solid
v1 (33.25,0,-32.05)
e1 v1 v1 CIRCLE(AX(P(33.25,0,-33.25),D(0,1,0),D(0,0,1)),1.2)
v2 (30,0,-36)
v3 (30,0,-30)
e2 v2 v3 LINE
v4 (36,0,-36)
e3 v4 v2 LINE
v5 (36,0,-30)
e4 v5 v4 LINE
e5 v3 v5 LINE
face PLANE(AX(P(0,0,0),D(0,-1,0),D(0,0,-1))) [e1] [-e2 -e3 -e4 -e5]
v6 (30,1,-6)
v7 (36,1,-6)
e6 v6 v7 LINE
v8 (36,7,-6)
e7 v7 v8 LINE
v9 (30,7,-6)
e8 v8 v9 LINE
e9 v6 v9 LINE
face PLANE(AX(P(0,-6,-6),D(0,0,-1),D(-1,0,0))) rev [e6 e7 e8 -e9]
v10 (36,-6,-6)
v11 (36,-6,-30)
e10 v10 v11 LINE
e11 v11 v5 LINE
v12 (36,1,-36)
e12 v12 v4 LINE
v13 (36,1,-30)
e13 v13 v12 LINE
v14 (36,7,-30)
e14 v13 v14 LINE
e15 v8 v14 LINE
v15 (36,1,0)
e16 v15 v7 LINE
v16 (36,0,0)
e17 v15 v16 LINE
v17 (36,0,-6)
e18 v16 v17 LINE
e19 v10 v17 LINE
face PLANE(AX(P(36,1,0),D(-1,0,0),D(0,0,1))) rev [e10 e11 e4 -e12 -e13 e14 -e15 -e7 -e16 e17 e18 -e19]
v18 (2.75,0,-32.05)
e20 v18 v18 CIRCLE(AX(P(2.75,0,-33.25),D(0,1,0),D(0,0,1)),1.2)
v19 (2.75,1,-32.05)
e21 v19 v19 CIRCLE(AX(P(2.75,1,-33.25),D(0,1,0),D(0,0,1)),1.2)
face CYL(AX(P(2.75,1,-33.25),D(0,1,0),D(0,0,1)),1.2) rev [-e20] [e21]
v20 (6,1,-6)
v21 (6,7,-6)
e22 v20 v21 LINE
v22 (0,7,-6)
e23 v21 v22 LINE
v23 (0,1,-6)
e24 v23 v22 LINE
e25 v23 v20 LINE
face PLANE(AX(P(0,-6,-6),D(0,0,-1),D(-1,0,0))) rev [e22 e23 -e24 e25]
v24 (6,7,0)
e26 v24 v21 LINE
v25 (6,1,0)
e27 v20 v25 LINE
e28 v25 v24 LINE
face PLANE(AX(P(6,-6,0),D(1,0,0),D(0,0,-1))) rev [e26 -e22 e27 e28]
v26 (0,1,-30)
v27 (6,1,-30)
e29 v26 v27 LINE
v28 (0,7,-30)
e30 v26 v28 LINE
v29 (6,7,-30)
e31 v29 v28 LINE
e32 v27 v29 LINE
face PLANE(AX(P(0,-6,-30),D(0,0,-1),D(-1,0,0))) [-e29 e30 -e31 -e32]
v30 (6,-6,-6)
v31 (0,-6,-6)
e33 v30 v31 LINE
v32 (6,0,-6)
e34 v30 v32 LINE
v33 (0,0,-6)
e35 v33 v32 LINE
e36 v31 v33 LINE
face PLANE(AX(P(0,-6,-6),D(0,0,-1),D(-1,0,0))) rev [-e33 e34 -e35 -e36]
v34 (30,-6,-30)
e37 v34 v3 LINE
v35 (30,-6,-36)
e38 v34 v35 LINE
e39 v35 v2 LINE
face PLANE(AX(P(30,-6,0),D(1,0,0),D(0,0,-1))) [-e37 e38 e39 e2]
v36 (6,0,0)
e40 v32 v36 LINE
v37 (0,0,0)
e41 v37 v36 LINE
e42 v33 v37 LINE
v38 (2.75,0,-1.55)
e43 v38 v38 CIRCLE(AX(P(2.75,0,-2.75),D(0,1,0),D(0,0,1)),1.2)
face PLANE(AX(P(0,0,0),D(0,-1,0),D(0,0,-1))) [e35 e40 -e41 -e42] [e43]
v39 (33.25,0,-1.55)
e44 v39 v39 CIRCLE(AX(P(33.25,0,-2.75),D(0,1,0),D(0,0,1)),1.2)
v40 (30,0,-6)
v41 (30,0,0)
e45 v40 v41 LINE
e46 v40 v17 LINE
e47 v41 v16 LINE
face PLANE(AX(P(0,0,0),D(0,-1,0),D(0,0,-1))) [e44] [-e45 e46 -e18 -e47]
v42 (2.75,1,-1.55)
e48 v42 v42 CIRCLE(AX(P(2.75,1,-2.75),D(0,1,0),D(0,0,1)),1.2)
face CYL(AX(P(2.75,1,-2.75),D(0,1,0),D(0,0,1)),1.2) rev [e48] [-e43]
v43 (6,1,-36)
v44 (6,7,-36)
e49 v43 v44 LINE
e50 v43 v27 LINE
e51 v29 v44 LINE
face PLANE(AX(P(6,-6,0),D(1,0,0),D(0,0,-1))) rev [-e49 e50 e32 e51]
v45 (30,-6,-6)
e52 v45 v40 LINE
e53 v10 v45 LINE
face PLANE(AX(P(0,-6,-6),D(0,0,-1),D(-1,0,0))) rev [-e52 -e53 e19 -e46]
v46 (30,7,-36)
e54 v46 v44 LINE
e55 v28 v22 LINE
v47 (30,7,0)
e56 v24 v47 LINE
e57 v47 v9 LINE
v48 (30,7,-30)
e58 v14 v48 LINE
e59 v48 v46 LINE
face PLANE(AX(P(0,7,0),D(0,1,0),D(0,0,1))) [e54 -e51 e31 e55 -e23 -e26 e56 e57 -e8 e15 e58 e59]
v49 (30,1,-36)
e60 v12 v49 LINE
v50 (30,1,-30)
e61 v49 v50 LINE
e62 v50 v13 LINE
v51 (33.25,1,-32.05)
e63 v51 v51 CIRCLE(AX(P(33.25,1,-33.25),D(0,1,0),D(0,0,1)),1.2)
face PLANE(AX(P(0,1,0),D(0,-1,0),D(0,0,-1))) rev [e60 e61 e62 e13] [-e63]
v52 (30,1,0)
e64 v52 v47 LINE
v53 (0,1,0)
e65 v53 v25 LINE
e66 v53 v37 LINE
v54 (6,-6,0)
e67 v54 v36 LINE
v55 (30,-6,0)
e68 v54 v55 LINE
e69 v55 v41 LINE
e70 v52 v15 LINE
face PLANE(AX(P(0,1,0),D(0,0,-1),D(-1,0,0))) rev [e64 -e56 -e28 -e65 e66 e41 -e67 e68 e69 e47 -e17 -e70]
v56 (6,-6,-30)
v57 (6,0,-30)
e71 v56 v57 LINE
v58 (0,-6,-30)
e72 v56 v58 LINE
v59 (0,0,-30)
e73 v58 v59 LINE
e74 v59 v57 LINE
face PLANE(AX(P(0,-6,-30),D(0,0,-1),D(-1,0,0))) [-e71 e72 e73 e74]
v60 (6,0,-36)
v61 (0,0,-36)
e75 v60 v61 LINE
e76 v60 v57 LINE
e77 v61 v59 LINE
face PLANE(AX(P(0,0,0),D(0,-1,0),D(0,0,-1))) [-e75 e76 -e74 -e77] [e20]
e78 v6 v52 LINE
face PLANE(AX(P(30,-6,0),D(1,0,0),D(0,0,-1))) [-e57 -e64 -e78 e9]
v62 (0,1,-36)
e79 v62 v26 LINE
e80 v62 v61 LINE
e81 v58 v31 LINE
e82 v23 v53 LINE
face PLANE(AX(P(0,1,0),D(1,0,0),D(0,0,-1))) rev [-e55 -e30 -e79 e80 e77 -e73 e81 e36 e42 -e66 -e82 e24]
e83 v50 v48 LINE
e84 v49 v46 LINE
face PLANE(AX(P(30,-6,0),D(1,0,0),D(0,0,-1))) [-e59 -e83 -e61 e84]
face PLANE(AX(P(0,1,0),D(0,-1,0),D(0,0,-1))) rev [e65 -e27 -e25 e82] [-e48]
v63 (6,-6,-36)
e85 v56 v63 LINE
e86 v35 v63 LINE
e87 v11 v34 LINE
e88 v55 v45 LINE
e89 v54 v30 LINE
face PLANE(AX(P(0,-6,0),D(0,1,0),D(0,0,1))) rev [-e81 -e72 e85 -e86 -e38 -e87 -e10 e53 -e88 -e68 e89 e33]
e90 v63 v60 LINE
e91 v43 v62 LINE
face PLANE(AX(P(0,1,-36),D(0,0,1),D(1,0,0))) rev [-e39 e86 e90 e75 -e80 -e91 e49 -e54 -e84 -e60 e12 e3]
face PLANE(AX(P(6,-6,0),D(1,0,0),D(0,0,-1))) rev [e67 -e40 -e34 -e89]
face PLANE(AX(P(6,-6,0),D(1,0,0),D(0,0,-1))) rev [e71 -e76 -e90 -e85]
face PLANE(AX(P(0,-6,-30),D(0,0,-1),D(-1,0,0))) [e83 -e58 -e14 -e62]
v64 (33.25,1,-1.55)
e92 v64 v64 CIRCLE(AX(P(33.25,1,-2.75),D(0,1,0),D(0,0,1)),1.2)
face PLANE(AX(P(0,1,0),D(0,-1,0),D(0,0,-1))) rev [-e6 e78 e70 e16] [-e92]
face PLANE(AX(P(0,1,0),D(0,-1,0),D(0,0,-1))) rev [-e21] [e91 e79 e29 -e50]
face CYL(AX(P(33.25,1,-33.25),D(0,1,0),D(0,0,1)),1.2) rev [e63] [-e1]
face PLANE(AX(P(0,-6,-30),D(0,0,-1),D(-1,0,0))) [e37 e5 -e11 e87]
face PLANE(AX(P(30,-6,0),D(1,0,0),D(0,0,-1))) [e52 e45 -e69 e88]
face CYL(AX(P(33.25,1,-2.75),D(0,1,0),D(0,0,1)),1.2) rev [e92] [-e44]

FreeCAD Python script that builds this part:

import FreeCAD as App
import Part
import Sketcher
from FreeCAD import Vector
Q = App.Units.Quantity


def add_polygon(sketch, points):
    """Adds a closed chain of lines whose ends are joined by coincident constraints."""
    first, n = sketch.GeometryCount, len(points)
    for a, b in zip(points, points[1:] + points[:1]):
        sketch.addGeometry(Part.LineSegment(App.Vector(*a, 0), App.Vector(*b, 0)), False)
    for i in range(n):
        sketch.addConstraint(Sketcher.Constraint("Coincident", first + i, 2, first + (i + 1) % n, 1))

doc = App.newDocument("Part")
body = doc.addObject("PartDesign::Body", "Body")

sketch1 = doc.addObject("Sketcher::SketchObject", "Sketch")
body.addObject(sketch1)
sketch1.AttachmentSupport = (doc.XZ_Plane, [""])
sketch1.MapMode = "FlatFace"
add_polygon(sketch1, [(0, -36), (0, 0), (36, 0), (36, -36)])
sketch1.addConstraint([
    Sketcher.Constraint("Vertical", 0),
    Sketcher.Constraint("Horizontal", 1),
    Sketcher.Constraint("Vertical", 2),
    Sketcher.Constraint("Horizontal", 3),
    Sketcher.Constraint("Coincident", 0, 2, -1, 1),
    Sketcher.Constraint("Equal", 3, 0),
    Sketcher.Constraint("DistanceX", 1, 1, 1, 2, Q("36 mm")),
])
pad1 = doc.addObject("PartDesign::Pad", "Pad")
body.addObject(pad1)
pad1.Profile = sketch1
pad1.Length = 1
pad1.Reversed = True

sketch2 = doc.addObject("Sketcher::SketchObject", "Sketch001")
body.addObject(sketch2)
sketch2.AttachmentSupport = (doc.XZ_Plane, [""])
sketch2.MapMode = "FlatFace"
sketch2.AttachmentOffset = App.Placement(Vector(0, 0, -1), App.Rotation())
sketch2.addGeometry([
    Part.Circle(Vector(2.8, -2.8, 0), Vector(0, 0, 1), 1.2),
    Part.Circle(Vector(2.8, -33.2, 0), Vector(0, 0, 1), 1.2),
    Part.Circle(Vector(33.2, -33.2, 0), Vector(0, 0, 1), 1.2),
    Part.Circle(Vector(33.2, -2.8, 0), Vector(0, 0, 1), 1.2),
], False)
sketch2.addConstraint([
    Sketcher.Constraint("Equal", 0, 1),
    Sketcher.Constraint("Equal", 1, 2),
    Sketcher.Constraint("Equal", 2, 3),
    Sketcher.Constraint("Horizontal", 1, 3, 2, 3),
    Sketcher.Constraint("Horizontal", 0, 3, 3, 3),
    Sketcher.Constraint("Vertical", 0, 3, 1, 3),
    Sketcher.Constraint("Vertical", 2, 3, 3, 3),
    Sketcher.Constraint("Diameter", 0, Q("2.4 mm")),
    Sketcher.Constraint("DistanceY", 1, 3, 0, 3, Q("30.5 mm")),
    Sketcher.Constraint("DistanceX", 1, 3, 2, 3, Q("30.5 mm")),
    Sketcher.Constraint("DistanceX", -1, 1, 0, 3, Q("2.75 mm")),
    Sketcher.Constraint("DistanceY", 0, 3, -1, 1, Q("2.75 mm")),
])
doc.recompute()
hole = doc.addObject("PartDesign::Hole", "Hole")
body.addObject(hole)
hole.Profile = sketch2
hole.ThreadType = "None"
hole.Diameter = 2.4
hole.DepthType = "ThroughAll"
hole.Reversed = True

sketch3 = doc.addObject("Sketcher::SketchObject", "Sketch002")
body.addObject(sketch3)
sketch3.AttachmentSupport = (doc.XZ_Plane, [""])
sketch3.MapMode = "FlatFace"
sketch3.AttachmentOffset = App.Placement(Vector(0, 0, -1), App.Rotation())
add_polygon(sketch3, [(0, -30), (0, -6), (6, -6), (6, 0), (30, 0), (30, -6), (36, -6), (36, -30), (30, -30), (30, -36), (6, -36), (6, -30)])
sketch3.addConstraint([
    Sketcher.Constraint("Vertical", 0),
    Sketcher.Constraint("Horizontal", 1),
    Sketcher.Constraint("Vertical", 2),
    Sketcher.Constraint("Horizontal", 3),
    Sketcher.Constraint("Vertical", 4),
    Sketcher.Constraint("Horizontal", 5),
    Sketcher.Constraint("Vertical", 6),
    Sketcher.Constraint("Horizontal", 7),
    Sketcher.Constraint("Vertical", 8),
    Sketcher.Constraint("Horizontal", 9),
    Sketcher.Constraint("Vertical", 10),
    Sketcher.Constraint("Horizontal", 11),
    Sketcher.Constraint("PointOnObject", 0, 2, -2),
    Sketcher.Constraint("PointOnObject", 2, 2, -1),
    Sketcher.Constraint("Horizontal", 1, 2, 4, 2),
    Sketcher.Constraint("Horizontal", 7, 2, 10, 2),
    Sketcher.Constraint("Vertical", 4, 2, 7, 2),
    Sketcher.Constraint("Vertical", 2, 2, 9, 2),
    Sketcher.Constraint("Equal", 1, 5),
    Sketcher.Constraint("Equal", 9, 0),
    Sketcher.Constraint("Equal", 11, 2),
    Sketcher.Constraint("Equal", 4, 8),
    Sketcher.Constraint("DistanceX", 1, 1, 1, 2, Q("6 mm")),
    Sketcher.Constraint("DistanceX", 3, 1, 3, 2, Q("24 mm")),
])
pad2 = doc.addObject("PartDesign::Pad", "Pad001")
body.addObject(pad2)
pad2.Profile = sketch3
pad2.Type = "TwoLengths"
pad2.Length = 6
pad2.Length2 = 7
pad2.Reversed = True

doc.recompute()
